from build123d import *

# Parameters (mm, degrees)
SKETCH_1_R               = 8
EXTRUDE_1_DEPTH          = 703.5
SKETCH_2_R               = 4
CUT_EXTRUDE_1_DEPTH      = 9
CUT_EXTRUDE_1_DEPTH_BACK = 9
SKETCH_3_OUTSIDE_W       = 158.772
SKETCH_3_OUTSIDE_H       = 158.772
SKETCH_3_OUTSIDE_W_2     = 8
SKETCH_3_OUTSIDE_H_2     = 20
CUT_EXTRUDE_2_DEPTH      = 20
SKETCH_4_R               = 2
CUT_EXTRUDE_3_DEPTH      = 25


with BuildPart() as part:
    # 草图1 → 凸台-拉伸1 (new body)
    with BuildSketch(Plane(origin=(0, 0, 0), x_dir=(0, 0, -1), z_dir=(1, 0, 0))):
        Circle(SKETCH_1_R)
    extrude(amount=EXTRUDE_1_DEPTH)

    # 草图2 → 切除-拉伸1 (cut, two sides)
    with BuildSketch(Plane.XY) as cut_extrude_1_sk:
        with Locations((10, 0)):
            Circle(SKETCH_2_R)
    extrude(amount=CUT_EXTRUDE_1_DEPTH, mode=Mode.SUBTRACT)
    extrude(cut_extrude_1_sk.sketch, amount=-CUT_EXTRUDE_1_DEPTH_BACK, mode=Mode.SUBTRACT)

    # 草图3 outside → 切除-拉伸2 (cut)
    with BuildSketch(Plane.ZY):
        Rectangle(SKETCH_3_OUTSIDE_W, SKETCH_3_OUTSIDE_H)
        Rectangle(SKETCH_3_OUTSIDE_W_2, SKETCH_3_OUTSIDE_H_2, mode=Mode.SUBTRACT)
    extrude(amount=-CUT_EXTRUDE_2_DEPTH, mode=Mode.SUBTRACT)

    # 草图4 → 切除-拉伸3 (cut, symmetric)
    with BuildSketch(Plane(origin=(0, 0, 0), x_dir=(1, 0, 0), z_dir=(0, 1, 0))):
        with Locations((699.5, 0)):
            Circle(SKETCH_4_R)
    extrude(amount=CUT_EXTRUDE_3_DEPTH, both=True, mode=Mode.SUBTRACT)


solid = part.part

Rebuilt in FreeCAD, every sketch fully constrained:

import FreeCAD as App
import Part
import Sketcher
from FreeCAD import Vector
Q = App.Units.Quantity


def add_polygon(sketch, points):
    """Adds a closed chain of lines whose ends are joined by coincident constraints."""
    first, n = sketch.GeometryCount, len(points)
    for a, b in zip(points, points[1:] + points[:1]):
        sketch.addGeometry(Part.LineSegment(App.Vector(*a, 0), App.Vector(*b, 0)), False)
    for i in range(n):
        sketch.addConstraint(Sketcher.Constraint("Coincident", first + i, 2, first + (i + 1) % n, 1))

doc = App.newDocument("Part")
params = doc.addObject("Spreadsheet::Sheet", "Params")
for row, (alias, value) in enumerate([
    ("sketch1_diameter", "16 mm"),
    ("pad1_length", "703.5 mm"),
    ("sketch2_diameter", "8 mm"),
    ("sketch3_width", "20 mm"),
    ("sketch3_height", "8 mm"),
    ("pocket2_length", "20 mm"),
    ("sketch4_diameter", "4 mm"),
    ("pocket3_length", "50 mm"),
], start=1):
    params.set(f"A{row}", alias)
    params.set(f"B{row}", "=" + value)
    params.setAlias(f"B{row}", alias)

body = doc.addObject("PartDesign::Body", "Body")

sketch1 = body.newObject("Sketcher::SketchObject", "Sketch")
sketch1.AttachmentSupport = (doc.getObject("YZ_Plane"), [""])
sketch1.MapMode = "FlatFace"
sketch1.addGeometry(Part.Circle(Vector(0, 0, 0), Vector(0, 0, 1), 8), False)
sketch1.addConstraint([
    Sketcher.Constraint("Coincident", 0, 3, -1, 1),
    Sketcher.Constraint("Diameter", 0, Q("16 mm")),
])
sketch1.setExpression("Constraints[1]", "Params.sketch1_diameter")
pad1 = body.newObject("PartDesign::Pad", "Pad")
pad1.Profile = sketch1
pad1.setExpression("Length", "Params.pad1_length")

sketch2 = body.newObject("Sketcher::SketchObject", "Sketch001")
sketch2.AttachmentSupport = (doc.getObject("XY_Plane"), [""])
sketch2.MapMode = "FlatFace"
sketch2.addGeometry(Part.Circle(Vector(10, 0, 0), Vector(0, 0, 1), 4), False)
sketch2.addConstraint([
    Sketcher.Constraint("PointOnObject", 0, 3, -1),
    Sketcher.Constraint("Diameter", 0, Q("8 mm")),
    Sketcher.Constraint("DistanceX", -1, 1, 0, 3, Q("10 mm")),
])
sketch2.setExpression("Constraints[1]", "Params.sketch2_diameter")
pocket1 = body.newObject("PartDesign::Pocket", "Pocket")
pocket1.Profile = sketch2
pocket1.Type = "ThroughAll"
pocket1.Midplane = True

sketch3 = body.newObject("Sketcher::SketchObject", "Sketch002")
sketch3.AttachmentSupport = (doc.getObject("YZ_Plane"), [""])
sketch3.MapMode = "FlatFace"
add_polygon(sketch3, [(79.386, -79.386), (-79.386, -79.386), (-79.386, 79.386), (79.386, 79.386)])
add_polygon(sketch3, [(-10, 4), (-10, -4), (10, -4), (10, 4)])
sketch3.addConstraint([
    Sketcher.Constraint("Horizontal", 0),
    Sketcher.Constraint("Vertical", 1),
    Sketcher.Constraint("Horizontal", 2),
    Sketcher.Constraint("Vertical", 3),
    Sketcher.Constraint("Vertical", 4),
    Sketcher.Constraint("Horizontal", 5),
    Sketcher.Constraint("Vertical", 6),
    Sketcher.Constraint("Horizontal", 7),
    Sketcher.Constraint("Symmetric", 0, 2, 2, 2, -1, 1),
    Sketcher.Constraint("Symmetric", 4, 2, 6, 2, -1, 1),
    Sketcher.Constraint("Equal", 2, 1),
    Sketcher.Constraint("DistanceX", 5, 1, 5, 2, Q("20 mm")),
    Sketcher.Constraint("DistanceY", 4, 2, 4, 1, Q("8 mm")),
    Sketcher.Constraint("DistanceX", 0, 2, 0, 1, Q("158.772 mm")),
])
sketch3.setExpression("Constraints[19]", "Params.sketch3_width")
sketch3.setExpression("Constraints[20]", "Params.sketch3_height")
pocket2 = body.newObject("PartDesign::Pocket", "Pocket001")
pocket2.Profile = sketch3
pocket2.setExpression("Length", "Params.pocket2_length")
pocket2.Reversed = True

sketch4 = body.newObject("Sketcher::SketchObject", "Sketch003")
sketch4.AttachmentSupport = (doc.getObject("XZ_Plane"), [""])
sketch4.MapMode = "FlatFace"
sketch4.addGeometry(Part.Circle(Vector(699.5, 0, 0), Vector(0, 0, 1), 2), False)
sketch4.addConstraint([
    Sketcher.Constraint("PointOnObject", 0, 3, -1),
    Sketcher.Constraint("Diameter", 0, Q("4 mm")),
    Sketcher.Constraint("DistanceX", -1, 1, 0, 3, Q("699.5 mm")),
])
sketch4.setExpression("Constraints[1]", "Params.sketch4_diameter")
pocket3 = body.newObject("PartDesign::Pocket", "Pocket002")
pocket3.Profile = sketch4
pocket3.setExpression("Length", "Params.pocket3_length")
pocket3.Midplane = True

doc.recompute()
